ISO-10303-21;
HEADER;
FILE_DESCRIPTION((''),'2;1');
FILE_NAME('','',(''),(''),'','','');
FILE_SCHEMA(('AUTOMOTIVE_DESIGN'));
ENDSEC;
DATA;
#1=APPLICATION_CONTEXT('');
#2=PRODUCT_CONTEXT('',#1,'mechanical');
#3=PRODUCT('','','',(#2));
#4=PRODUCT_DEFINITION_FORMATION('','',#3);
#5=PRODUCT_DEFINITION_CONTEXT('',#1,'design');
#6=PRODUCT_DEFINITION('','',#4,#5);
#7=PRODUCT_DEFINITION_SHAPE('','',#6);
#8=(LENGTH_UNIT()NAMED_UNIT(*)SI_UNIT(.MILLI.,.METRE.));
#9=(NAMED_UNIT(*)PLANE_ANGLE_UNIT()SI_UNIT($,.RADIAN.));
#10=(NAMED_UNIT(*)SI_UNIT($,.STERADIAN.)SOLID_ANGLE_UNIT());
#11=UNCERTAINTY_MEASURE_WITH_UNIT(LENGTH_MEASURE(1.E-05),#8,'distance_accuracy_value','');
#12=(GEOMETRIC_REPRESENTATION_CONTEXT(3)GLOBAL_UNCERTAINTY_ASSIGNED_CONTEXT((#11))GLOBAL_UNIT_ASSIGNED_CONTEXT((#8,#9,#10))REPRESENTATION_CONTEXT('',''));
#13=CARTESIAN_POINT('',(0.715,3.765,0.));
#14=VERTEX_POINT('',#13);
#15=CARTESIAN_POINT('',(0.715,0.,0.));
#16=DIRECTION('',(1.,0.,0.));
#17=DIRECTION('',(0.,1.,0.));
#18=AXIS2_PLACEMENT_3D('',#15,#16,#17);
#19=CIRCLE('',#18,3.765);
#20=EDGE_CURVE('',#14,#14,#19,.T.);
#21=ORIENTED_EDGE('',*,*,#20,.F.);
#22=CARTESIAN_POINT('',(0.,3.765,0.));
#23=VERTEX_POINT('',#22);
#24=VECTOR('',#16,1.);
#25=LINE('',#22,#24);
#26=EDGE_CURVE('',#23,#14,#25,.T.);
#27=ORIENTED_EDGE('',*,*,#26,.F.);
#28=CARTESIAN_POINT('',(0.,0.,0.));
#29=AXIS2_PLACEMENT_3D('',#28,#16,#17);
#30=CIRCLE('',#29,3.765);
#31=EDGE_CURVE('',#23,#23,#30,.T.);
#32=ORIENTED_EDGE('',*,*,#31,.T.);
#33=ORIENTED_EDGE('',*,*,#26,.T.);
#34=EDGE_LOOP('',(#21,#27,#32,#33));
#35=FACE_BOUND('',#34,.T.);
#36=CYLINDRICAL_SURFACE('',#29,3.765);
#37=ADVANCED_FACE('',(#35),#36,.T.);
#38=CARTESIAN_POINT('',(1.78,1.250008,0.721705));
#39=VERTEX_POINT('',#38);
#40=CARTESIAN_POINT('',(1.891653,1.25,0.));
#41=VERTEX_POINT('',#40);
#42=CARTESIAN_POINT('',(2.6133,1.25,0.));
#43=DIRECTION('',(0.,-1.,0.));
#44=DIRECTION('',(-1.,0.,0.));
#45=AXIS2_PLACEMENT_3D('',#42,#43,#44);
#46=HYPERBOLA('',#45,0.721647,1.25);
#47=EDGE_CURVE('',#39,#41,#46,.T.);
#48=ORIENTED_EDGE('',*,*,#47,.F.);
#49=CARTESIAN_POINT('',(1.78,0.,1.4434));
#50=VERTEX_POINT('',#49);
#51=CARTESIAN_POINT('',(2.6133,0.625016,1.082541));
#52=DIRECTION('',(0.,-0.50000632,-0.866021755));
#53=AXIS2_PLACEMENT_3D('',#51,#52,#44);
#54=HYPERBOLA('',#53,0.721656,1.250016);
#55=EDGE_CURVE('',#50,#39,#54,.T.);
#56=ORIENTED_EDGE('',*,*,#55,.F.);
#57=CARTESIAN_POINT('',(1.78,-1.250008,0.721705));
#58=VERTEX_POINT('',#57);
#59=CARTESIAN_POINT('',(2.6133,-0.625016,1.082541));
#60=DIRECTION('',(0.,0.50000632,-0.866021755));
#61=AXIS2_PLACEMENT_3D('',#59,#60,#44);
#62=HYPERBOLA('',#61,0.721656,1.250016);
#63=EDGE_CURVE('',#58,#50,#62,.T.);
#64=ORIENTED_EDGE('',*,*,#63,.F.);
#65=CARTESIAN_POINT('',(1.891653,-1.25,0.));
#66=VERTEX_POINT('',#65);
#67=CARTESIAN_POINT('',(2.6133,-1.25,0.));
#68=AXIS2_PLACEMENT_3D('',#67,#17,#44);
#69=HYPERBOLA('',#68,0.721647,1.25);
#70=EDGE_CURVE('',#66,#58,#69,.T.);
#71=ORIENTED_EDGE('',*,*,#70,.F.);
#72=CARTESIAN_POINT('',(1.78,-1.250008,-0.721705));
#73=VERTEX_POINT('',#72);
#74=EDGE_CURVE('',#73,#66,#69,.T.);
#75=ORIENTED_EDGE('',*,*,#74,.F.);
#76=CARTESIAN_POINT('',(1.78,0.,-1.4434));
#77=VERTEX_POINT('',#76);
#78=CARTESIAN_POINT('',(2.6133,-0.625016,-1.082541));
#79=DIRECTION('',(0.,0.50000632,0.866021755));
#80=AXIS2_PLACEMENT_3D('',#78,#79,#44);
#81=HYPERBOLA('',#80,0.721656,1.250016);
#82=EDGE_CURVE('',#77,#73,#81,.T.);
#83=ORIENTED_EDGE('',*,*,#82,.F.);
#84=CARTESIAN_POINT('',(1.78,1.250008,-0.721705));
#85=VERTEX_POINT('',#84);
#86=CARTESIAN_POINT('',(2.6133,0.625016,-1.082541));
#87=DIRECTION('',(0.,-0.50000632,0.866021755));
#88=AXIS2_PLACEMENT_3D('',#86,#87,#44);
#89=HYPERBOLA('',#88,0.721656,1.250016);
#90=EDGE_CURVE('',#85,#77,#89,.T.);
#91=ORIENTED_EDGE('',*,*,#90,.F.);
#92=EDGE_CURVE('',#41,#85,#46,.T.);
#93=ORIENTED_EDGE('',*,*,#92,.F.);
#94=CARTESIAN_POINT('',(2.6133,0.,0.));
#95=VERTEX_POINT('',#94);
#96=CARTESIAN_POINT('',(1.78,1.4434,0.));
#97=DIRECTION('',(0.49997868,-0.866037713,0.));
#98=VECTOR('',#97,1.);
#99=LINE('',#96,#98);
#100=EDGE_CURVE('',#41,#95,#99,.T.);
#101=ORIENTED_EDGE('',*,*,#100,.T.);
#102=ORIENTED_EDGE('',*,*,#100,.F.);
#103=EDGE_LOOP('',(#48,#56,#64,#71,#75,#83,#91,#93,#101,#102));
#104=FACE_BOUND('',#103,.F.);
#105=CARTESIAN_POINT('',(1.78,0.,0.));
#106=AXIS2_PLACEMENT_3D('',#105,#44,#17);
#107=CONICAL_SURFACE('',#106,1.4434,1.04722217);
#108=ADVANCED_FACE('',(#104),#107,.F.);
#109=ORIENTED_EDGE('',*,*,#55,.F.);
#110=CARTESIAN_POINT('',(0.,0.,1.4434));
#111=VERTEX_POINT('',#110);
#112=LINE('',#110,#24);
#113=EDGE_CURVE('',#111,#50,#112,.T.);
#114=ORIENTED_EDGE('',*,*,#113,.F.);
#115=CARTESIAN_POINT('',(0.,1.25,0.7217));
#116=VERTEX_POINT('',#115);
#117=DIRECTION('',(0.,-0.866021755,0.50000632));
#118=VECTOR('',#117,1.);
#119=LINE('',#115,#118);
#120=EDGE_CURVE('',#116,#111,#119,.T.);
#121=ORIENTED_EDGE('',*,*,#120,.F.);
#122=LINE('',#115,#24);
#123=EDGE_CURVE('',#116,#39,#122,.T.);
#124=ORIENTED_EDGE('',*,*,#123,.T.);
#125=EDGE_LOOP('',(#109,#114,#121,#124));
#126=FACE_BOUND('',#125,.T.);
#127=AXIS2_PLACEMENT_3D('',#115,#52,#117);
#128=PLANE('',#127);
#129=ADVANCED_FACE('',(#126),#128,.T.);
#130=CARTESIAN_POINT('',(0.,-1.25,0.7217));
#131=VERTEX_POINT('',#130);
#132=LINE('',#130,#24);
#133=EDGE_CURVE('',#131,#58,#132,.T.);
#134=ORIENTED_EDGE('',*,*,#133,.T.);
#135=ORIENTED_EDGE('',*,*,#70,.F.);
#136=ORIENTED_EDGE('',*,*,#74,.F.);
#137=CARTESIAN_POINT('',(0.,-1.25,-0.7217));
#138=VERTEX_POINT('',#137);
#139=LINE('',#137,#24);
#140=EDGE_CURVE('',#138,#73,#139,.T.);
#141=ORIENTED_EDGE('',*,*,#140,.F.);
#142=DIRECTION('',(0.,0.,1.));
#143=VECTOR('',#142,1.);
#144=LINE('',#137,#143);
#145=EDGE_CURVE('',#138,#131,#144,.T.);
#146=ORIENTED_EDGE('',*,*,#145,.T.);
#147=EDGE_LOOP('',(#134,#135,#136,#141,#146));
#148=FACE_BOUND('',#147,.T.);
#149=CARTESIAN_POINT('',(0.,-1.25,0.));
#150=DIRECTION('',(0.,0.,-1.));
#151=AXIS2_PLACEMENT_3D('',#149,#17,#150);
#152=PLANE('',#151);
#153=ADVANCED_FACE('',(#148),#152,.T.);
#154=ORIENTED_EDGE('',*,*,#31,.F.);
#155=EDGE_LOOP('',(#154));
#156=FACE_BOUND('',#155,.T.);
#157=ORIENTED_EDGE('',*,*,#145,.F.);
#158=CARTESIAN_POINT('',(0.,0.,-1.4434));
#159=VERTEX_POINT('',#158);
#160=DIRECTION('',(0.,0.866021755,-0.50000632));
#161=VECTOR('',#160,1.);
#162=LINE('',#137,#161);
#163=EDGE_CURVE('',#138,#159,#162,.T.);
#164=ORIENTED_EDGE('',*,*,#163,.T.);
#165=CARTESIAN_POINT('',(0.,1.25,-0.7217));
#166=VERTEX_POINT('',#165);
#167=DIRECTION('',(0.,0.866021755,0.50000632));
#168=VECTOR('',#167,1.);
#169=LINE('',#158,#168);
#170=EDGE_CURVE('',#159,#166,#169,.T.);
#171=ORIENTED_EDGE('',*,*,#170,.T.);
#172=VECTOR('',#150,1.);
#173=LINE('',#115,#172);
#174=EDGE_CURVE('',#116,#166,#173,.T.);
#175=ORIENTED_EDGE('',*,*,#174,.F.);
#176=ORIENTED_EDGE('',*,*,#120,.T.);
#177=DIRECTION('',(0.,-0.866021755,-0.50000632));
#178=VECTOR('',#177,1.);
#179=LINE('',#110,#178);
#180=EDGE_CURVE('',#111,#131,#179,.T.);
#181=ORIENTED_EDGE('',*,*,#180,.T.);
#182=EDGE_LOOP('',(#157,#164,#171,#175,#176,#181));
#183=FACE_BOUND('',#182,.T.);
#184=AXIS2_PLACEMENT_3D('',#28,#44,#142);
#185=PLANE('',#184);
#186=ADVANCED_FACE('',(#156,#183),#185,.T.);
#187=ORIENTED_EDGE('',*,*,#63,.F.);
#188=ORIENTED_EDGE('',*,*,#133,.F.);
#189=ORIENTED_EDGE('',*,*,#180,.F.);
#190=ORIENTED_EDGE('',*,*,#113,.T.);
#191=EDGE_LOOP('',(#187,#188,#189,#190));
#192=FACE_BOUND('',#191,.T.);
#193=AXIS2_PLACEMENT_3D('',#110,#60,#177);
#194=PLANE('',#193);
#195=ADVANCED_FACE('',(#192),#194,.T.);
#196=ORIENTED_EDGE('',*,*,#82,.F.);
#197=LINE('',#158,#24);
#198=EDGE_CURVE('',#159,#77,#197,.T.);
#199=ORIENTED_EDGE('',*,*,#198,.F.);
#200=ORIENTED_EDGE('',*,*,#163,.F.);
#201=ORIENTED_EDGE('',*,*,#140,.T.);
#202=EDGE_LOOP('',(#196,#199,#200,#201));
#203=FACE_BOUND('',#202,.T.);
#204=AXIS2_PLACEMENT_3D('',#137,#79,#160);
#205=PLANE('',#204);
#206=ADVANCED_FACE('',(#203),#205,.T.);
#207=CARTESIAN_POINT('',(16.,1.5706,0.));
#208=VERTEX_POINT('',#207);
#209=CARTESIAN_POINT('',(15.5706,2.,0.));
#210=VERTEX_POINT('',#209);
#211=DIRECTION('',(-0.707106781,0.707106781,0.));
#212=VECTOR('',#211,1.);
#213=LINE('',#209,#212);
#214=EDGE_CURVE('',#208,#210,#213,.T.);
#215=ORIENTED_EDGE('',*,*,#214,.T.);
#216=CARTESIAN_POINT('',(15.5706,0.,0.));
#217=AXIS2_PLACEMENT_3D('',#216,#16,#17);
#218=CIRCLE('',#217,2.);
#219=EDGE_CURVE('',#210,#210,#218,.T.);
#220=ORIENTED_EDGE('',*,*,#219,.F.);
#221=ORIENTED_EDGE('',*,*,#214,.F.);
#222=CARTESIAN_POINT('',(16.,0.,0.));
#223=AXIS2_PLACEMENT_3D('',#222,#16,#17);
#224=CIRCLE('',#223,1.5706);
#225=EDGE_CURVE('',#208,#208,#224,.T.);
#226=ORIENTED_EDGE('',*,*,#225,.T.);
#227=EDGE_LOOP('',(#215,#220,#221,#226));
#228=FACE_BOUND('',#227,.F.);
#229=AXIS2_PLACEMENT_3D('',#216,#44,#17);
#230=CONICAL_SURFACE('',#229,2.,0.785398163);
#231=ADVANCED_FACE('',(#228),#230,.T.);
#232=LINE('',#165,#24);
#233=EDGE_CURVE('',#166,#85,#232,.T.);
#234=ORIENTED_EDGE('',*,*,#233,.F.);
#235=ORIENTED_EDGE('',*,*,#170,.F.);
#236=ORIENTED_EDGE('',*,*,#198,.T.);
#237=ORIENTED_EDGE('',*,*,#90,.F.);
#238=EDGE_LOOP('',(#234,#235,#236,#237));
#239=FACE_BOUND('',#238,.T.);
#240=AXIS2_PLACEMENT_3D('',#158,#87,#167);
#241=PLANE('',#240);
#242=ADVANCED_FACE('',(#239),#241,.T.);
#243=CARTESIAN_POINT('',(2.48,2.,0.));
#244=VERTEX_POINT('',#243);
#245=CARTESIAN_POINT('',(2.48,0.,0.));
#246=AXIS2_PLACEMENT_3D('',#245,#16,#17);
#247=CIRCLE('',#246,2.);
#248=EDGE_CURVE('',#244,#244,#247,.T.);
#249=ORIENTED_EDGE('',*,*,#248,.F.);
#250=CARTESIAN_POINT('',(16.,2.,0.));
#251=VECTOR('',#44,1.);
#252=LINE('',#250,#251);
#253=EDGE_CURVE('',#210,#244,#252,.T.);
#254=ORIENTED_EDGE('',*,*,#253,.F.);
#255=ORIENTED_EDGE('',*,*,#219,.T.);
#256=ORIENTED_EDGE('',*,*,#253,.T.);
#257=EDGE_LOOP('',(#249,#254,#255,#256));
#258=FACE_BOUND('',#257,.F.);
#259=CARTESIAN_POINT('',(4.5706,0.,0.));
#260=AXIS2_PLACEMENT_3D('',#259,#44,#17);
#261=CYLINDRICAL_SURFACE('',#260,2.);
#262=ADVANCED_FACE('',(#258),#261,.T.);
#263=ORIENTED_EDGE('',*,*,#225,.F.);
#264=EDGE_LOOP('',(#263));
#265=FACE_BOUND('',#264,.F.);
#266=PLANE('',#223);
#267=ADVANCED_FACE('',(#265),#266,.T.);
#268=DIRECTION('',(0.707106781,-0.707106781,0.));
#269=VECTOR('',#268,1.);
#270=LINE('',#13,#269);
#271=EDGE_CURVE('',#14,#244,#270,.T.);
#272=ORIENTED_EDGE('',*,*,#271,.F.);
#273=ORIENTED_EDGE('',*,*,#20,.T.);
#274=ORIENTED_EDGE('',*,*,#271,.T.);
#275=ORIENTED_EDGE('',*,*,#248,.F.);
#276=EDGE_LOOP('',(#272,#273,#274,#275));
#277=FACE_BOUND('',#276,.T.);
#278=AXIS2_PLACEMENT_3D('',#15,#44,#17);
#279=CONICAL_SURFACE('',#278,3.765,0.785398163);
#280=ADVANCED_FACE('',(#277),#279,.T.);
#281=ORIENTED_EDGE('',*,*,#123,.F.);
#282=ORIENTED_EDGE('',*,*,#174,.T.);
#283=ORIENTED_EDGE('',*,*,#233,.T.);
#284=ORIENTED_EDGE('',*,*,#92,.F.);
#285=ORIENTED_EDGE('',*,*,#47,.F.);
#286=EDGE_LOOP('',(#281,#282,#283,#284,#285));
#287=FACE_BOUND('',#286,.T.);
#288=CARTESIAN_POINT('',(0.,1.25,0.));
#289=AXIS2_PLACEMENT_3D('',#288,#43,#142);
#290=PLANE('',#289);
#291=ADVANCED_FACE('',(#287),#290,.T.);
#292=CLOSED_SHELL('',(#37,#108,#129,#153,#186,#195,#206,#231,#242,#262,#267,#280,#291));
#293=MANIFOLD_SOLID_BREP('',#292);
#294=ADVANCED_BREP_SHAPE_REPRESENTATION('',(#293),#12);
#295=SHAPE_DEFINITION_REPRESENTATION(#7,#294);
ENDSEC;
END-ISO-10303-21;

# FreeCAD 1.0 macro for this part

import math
import FreeCAD as App
import Part
import Sketcher
from FreeCAD import Vector
Q = App.Units.Quantity


def edges_at(feature, points):
    """Names of the edges that pass closest to the given points."""
    edges = feature.Shape.Edges
    near = lambda p: min(range(len(edges)), key=lambda i: edges[i].distToShape(Part.Vertex(*p))[0])
    return sorted({f"Edge{near(p) + 1}" for p in points})

doc = App.newDocument("Part")
body = doc.addObject("PartDesign::Body", "Body")

sketch1 = doc.addObject("Sketcher::SketchObject", "Sketch")
body.addObject(sketch1)
sketch1.AttachmentSupport = (doc.XY_Plane, [""])
sketch1.MapMode = "FlatFace"
sketch1.addGeometry(Part.LineSegment(Vector(2.6, 0, 0), Vector(16, 0, 0)), False)
sketch1.addGeometry(Part.LineSegment(Vector(16, 0, 0), Vector(16, 2, 0)), False)
sketch1.addGeometry(Part.LineSegment(Vector(16, 2, 0), Vector(2.5, 2, 0)), False)
sketch1.addGeometry(Part.LineSegment(Vector(2.5, 2, 0), Vector(0.7, 3.8, 0)), False)
sketch1.addGeometry(Part.LineSegment(Vector(0.7, 3.8, 0), Vector(0, 3.8, 0)), False)
sketch1.addGeometry(Part.LineSegment(Vector(0, 3.8, 0), Vector(0, 1.4, 0)), False)
sketch1.addGeometry(Part.LineSegment(Vector(0, 1.4, 0), Vector(1.8, 1.4, 0)), False)
sketch1.addGeometry(Part.LineSegment(Vector(1.8, 1.4, 0), Vector(2.6, 0, 0)), False)
sketch1.addConstraint(Sketcher.Constraint("Coincident", 0, 2, 1, 1))
sketch1.addConstraint(Sketcher.Constraint("Coincident", 1, 2, 2, 1))
sketch1.addConstraint(Sketcher.Constraint("Coincident", 2, 2, 3, 1))
sketch1.addConstraint(Sketcher.Constraint("Coincident", 3, 2, 4, 1))
sketch1.addConstraint(Sketcher.Constraint("Coincident", 4, 2, 5, 1))
sketch1.addConstraint(Sketcher.Constraint("Coincident", 5, 2, 6, 1))
sketch1.addConstraint(Sketcher.Constraint("Coincident", 6, 2, 7, 1))
sketch1.addConstraint(Sketcher.Constraint("Coincident", 7, 2, 0, 1))
sketch1.addConstraint(Sketcher.Constraint("Horizontal", 0))
sketch1.addConstraint(Sketcher.Constraint("Vertical", 1))
sketch1.addConstraint(Sketcher.Constraint("Horizontal", 2))
sketch1.addConstraint(Sketcher.Constraint("Horizontal", 4))
sketch1.addConstraint(Sketcher.Constraint("Vertical", 5))
sketch1.addConstraint(Sketcher.Constraint("Horizontal", 6))
sketch1.addConstraint(Sketcher.Constraint("PointOnObject", 0, 2, -1))
sketch1.addConstraint(Sketcher.Constraint("PointOnObject", 4, 2, -2))
sketch1.addConstraint(Sketcher.Constraint("DistanceX", -1, 1, 0, 2, Q("16 mm")))
sketch1.addConstraint(Sketcher.Constraint("DistanceX", 6, 1, 6, 2, Q("1.78 mm")))
sketch1.addConstraint(Sketcher.Constraint("DistanceY", 1, 1, 1, 2, Q("2 mm")))
sketch1.addConstraint(Sketcher.Constraint("DistanceX", -1, 1, 2, 2, Q("2.48 mm")))
sketch1.addConstraint(Sketcher.Constraint("Angle", 3, Q("135 deg")))
sketch1.addConstraint(Sketcher.Constraint("DistanceX", 4, 2, 4, 1, Q("0.715 mm")))
sketch1.addConstraint(Sketcher.Constraint("DistanceX", 0, 1, 0, 2, Q("13.3867 mm")))
sketch1.addConstraint(Sketcher.Constraint("DistanceY", 5, 2, 5, 1, Q("2.3216 mm")))
revolution = doc.addObject("PartDesign::Revolution", "Revolution")
body.addObject(revolution)
revolution.Profile = sketch1
revolution.ReferenceAxis = (sketch1, ["H_Axis"])
revolution.Angle = 360

sketch2 = doc.addObject("Sketcher::SketchObject", "Sketch001")
body.addObject(sketch2)
sketch2.AttachmentSupport = (doc.YZ_Plane, [""])
sketch2.MapMode = "FlatFace"
sketch2.addGeometry(Part.LineSegment(Vector(1.2, 0.7, 0), Vector(0, 1.4, 0)), False)
sketch2.addGeometry(Part.ArcOfCircle(Part.Circle(Vector(0, 0, 0), Vector(0, 0, 1), 1.4), math.radians(30), math.radians(90)), False)
sketch2.addGeometry(Part.ArcOfCircle(Part.Circle(Vector(0, 0, 0), Vector(0, 0, 1), 1.4), math.radians(90), math.radians(150)), False)
sketch2.addGeometry(Part.LineSegment(Vector(0, 1.4, 0), Vector(-1.2, 0.7, 0)), False)
sketch2.addGeometry(Part.ArcOfCircle(Part.Circle(Vector(0, 0, 0), Vector(0, 0, 1), 1.4), math.radians(-30), math.radians(30)), False)
sketch2.addGeometry(Part.LineSegment(Vector(1.2, 0.7, 0), Vector(1.2, -0.7, 0)), False)
sketch2.addGeometry(Part.LineSegment(Vector(-1.2, 0.7, 0), Vector(-1.2, -0.7, 0)), False)
sketch2.addGeometry(Part.ArcOfCircle(Part.Circle(Vector(0, 0, 0), Vector(0, 0, 1), 1.4), math.radians(150), math.radians(210)), False)
sketch2.addGeometry(Part.LineSegment(Vector(-1.2, -0.7, 0), Vector(0, -1.4, 0)), False)
sketch2.addGeometry(Part.ArcOfCircle(Part.Circle(Vector(0, 0, 0), Vector(0, 0, 1), 1.4), math.radians(-150), math.radians(-90)), False)
sketch2.addGeometry(Part.ArcOfCircle(Part.Circle(Vector(0, 0, 0), Vector(0, 0, 1), 1.4), math.radians(-90), math.radians(-30)), False)
sketch2.addGeometry(Part.LineSegment(Vector(0, -1.4, 0), Vector(1.2, -0.7, 0)), False)
sketch2.addConstraint(Sketcher.Constraint("Coincident", 0, 1, 1, 1))
sketch2.addConstraint(Sketcher.Constraint("Coincident", 1, 2, 0, 2))
sketch2.addConstraint(Sketcher.Constraint("Coincident", 2, 1, 3, 1))
sketch2.addConstraint(Sketcher.Constraint("Coincident", 3, 2, 2, 2))
sketch2.addConstraint(Sketcher.Constraint("Coincident", 4, 1, 5, 2))
sketch2.addConstraint(Sketcher.Constraint("Coincident", 5, 1, 4, 2))
sketch2.addConstraint(Sketcher.Constraint("Coincident", 6, 1, 7, 1))
sketch2.addConstraint(Sketcher.Constraint("Coincident", 7, 2, 6, 2))
sketch2.addConstraint(Sketcher.Constraint("Coincident", 8, 1, 9, 1))
sketch2.addConstraint(Sketcher.Constraint("Coincident", 9, 2, 8, 2))
sketch2.addConstraint(Sketcher.Constraint("Coincident", 10, 1, 11, 1))
sketch2.addConstraint(Sketcher.Constraint("Coincident", 11, 2, 10, 2))
sketch2.addConstraint(Sketcher.Constraint("Vertical", 5))
sketch2.addConstraint(Sketcher.Constraint("Vertical", 6))
sketch2.addConstraint(Sketcher.Constraint("Coincident", 1, 3, -1, 1))
sketch2.addConstraint(Sketcher.Constraint("Coincident", 2, 3, -1, 1))
sketch2.addConstraint(Sketcher.Constraint("Coincident", 4, 3, -1, 1))
sketch2.addConstraint(Sketcher.Constraint("Coincident", 7, 3, -1, 1))
sketch2.addConstraint(Sketcher.Constraint("Coincident", 9, 3, -1, 1))
sketch2.addConstraint(Sketcher.Constraint("Coincident", 10, 3, -1, 1))
sketch2.addConstraint(Sketcher.Constraint("Coincident", 2, 1, 1, 2))
sketch2.addConstraint(Sketcher.Constraint("Coincident", 5, 1, 0, 1))
sketch2.addConstraint(Sketcher.Constraint("Coincident", 6, 1, 3, 2))
sketch2.addConstraint(Sketcher.Constraint("Coincident", 8, 1, 7, 2))
sketch2.addConstraint(Sketcher.Constraint("Coincident", 10, 1, 9, 2))
sketch2.addConstraint(Sketcher.Constraint("PointOnObject", 1, 2, -2))
sketch2.addConstraint(Sketcher.Constraint("PointOnObject", 9, 2, -2))
sketch2.addConstraint(Sketcher.Constraint("Parallel", 0, 8))
sketch2.addConstraint(Sketcher.Constraint("Parallel", 3, 11))
sketch2.addConstraint(Sketcher.Constraint("Angle", 0, Q("149.9996 deg")))
sketch2.addConstraint(Sketcher.Constraint("Radius", 1, Q("1.4434 mm")))
pad1 = doc.addObject("PartDesign::Pad", "Pad")
body.addObject(pad1)
pad1.Profile = sketch2
pad1.Type = "UpToFirst"
doc.recompute()

chamfer = doc.addObject("PartDesign::Chamfer", "Chamfer")
body.addObject(chamfer)
chamfer.Base = (pad1, edges_at(pad1, [(16, -2, 0)]))
chamfer.ChamferType = "Two distances"
chamfer.Size = 0.4294
chamfer.Size2 = 0.4294

doc.recompute()
